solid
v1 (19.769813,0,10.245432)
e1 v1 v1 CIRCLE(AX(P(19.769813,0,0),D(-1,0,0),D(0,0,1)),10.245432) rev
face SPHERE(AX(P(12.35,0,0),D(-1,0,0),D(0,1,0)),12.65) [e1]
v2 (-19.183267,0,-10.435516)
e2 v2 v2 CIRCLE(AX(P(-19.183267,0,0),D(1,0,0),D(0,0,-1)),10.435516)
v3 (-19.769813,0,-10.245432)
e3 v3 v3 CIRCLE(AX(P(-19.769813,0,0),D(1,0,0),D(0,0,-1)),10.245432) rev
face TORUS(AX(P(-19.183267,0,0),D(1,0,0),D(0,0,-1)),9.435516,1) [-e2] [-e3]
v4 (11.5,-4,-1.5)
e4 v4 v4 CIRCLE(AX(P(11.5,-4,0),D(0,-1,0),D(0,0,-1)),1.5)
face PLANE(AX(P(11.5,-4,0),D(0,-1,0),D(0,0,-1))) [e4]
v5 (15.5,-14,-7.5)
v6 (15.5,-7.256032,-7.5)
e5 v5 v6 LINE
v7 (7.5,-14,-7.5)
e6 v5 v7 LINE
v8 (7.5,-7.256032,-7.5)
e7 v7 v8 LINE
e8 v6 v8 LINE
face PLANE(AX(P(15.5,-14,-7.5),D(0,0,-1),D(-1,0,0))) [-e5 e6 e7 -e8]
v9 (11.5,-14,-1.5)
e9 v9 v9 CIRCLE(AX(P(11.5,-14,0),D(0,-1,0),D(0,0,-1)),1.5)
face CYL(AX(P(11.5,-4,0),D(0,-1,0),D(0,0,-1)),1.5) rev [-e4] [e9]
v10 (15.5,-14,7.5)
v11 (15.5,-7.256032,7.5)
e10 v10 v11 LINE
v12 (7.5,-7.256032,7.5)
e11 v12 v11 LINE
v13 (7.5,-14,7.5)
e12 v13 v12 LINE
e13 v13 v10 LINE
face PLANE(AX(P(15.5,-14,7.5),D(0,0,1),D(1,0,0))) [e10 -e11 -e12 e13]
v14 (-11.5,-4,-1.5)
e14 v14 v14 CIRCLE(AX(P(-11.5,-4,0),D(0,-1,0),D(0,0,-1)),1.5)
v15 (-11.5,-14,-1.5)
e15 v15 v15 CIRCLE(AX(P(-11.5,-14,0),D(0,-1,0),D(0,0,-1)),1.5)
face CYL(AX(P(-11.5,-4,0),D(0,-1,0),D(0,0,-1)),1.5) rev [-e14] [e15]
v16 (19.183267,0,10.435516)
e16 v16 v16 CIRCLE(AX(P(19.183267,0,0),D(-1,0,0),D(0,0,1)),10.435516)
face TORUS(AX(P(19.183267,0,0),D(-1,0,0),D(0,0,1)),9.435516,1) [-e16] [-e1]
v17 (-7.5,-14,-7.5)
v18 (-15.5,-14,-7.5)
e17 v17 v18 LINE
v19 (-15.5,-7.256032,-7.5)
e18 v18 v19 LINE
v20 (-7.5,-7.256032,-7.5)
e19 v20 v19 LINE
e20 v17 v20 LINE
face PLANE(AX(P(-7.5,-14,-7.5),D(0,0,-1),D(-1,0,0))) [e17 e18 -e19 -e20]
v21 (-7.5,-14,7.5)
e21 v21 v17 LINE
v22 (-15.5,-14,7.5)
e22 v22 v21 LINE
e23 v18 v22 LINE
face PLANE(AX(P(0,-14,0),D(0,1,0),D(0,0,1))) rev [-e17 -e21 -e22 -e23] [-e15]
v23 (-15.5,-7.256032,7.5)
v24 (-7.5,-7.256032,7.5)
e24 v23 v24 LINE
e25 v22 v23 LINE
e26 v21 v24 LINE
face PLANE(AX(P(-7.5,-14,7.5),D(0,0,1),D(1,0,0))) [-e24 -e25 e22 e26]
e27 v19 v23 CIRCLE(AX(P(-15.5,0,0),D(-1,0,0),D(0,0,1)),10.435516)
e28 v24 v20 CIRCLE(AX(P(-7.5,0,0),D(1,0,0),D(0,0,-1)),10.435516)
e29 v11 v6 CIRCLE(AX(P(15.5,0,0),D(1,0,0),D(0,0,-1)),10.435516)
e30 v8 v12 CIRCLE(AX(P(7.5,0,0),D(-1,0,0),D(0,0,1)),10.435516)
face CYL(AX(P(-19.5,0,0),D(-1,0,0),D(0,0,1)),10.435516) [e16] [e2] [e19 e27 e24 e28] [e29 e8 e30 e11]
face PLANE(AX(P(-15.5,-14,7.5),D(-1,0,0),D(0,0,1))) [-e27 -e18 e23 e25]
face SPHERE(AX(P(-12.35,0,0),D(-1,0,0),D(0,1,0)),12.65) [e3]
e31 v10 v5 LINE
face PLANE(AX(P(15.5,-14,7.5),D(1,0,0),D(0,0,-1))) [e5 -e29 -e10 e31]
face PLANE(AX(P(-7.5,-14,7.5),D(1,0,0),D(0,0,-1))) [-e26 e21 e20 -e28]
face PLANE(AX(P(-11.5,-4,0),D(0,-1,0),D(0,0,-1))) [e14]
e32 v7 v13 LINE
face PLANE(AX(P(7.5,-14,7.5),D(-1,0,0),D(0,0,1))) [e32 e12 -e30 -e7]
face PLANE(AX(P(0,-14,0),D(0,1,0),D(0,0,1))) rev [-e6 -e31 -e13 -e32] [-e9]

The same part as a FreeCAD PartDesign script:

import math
import FreeCAD as App
import Part
import Sketcher
from FreeCAD import Vector
Q = App.Units.Quantity


def edges_at(feature, points):
    """Names of the edges that pass closest to the given points."""
    edges = feature.Shape.Edges
    near = lambda p: min(range(len(edges)), key=lambda i: edges[i].distToShape(Part.Vertex(*p))[0])
    return sorted({f"Edge{near(p) + 1}" for p in points})


def add_polygon(sketch, points):
    """Adds a closed chain of lines whose ends are joined by coincident constraints."""
    first, n = sketch.GeometryCount, len(points)
    for a, b in zip(points, points[1:] + points[:1]):
        sketch.addGeometry(Part.LineSegment(App.Vector(*a, 0), App.Vector(*b, 0)), False)
    for i in range(n):
        sketch.addConstraint(Sketcher.Constraint("Coincident", first + i, 2, first + (i + 1) % n, 1))

doc = App.newDocument("Part")
body = doc.addObject("PartDesign::Body", "Body")

sketch1 = body.newObject("Sketcher::SketchObject", "Sketch")
sketch1.AttachmentSupport = (doc.getObject("XY_Plane"), [""])
sketch1.MapMode = "FlatFace"
sketch1.addGeometry(Part.LineSegment(Vector(20, 10, 0), Vector(-20, 10, 0)), False)
sketch1.addGeometry(Part.ArcOfCircle(Part.Circle(Vector(-12, 0, 0), Vector(0, 0, 1), 13), math.radians(124), math.radians(180)), False)
sketch1.addGeometry(Part.LineSegment(Vector(-25, 0, 0), Vector(25, 0, 0)), False)
sketch1.addGeometry(Part.ArcOfCircle(Part.Circle(Vector(12, 0, 0), Vector(0, 0, 1), 13), math.radians(0), math.radians(56)), False)
sketch1.addConstraint(Sketcher.Constraint("Coincident", 0, 2, 1, 1))
sketch1.addConstraint(Sketcher.Constraint("Coincident", 1, 2, 2, 1))
sketch1.addConstraint(Sketcher.Constraint("Coincident", 2, 2, 3, 1))
sketch1.addConstraint(Sketcher.Constraint("Coincident", 3, 2, 0, 1))
sketch1.addConstraint(Sketcher.Constraint("Horizontal", 0))
sketch1.addConstraint(Sketcher.Constraint("Horizontal", 2))
sketch1.addConstraint(Sketcher.Constraint("Equal", 1, 3))
sketch1.addConstraint(Sketcher.Constraint("Symmetric", 1, 3, 3, 3, -1, 1))
sketch1.addConstraint(Sketcher.Constraint("PointOnObject", 1, 3, -1))
sketch1.addConstraint(Sketcher.Constraint("PointOnObject", 1, 2, -1))
sketch1.addConstraint(Sketcher.Constraint("DistanceX", 0, 2, 0, 1, Q("39 mm")))
sketch1.addConstraint(Sketcher.Constraint("DistanceX", 2, 1, 2, 2, Q("50 mm")))
sketch1.addConstraint(Sketcher.Constraint("Radius", 1, Q("12.65 mm")))
revolution = body.newObject("PartDesign::Revolution", "Revolution")
revolution.Profile = sketch1
revolution.ReferenceAxis = (sketch1, ["H_Axis"])
revolution.Angle = 360

sketch2 = body.newObject("Sketcher::SketchObject", "Sketch001")
sketch2.AttachmentSupport = (doc.getObject("XZ_Plane"), [""])
sketch2.MapMode = "FlatFace"
add_polygon(sketch2, [(-16, -8), (-16, 8), (-8, 8), (-8, -8)])
add_polygon(sketch2, [(8, -8), (8, 8), (16, 8), (16, -8)])
sketch2.addConstraint(Sketcher.Constraint("Vertical", 0))
sketch2.addConstraint(Sketcher.Constraint("Horizontal", 1))
sketch2.addConstraint(Sketcher.Constraint("Vertical", 2))
sketch2.addConstraint(Sketcher.Constraint("Horizontal", 3))
sketch2.addConstraint(Sketcher.Constraint("Vertical", 4))
sketch2.addConstraint(Sketcher.Constraint("Horizontal", 5))
sketch2.addConstraint(Sketcher.Constraint("Vertical", 6))
sketch2.addConstraint(Sketcher.Constraint("Horizontal", 7))
sketch2.addConstraint(Sketcher.Constraint("Symmetric", 2, 2, 4, 2, -1, 1))
sketch2.addConstraint(Sketcher.Constraint("Symmetric", 0, 2, 6, 2, -1, 1))
sketch2.addConstraint(Sketcher.Constraint("Horizontal", 1, 2, 4, 2))
sketch2.addConstraint(Sketcher.Constraint("DistanceX", 1, 1, 1, 2, Q("8 mm")))
sketch2.addConstraint(Sketcher.Constraint("DistanceY", 0, 1, 0, 2, Q("15 mm")))
sketch2.addConstraint(Sketcher.Constraint("DistanceX", 1, 2, 4, 2, Q("15 mm")))
pad1 = body.newObject("PartDesign::Pad", "Pad")
pad1.Profile = sketch2
pad1.Length = 14

sketch3 = body.newObject("Sketcher::SketchObject", "Sketch002")
sketch3.AttachmentSupport = (doc.getObject("XZ_Plane"), [""])
sketch3.MapMode = "FlatFace"
sketch3.AttachmentOffset = App.Placement(Vector(0, 0, 14), App.Rotation())
sketch3.addGeometry(Part.Circle(Vector(11.5, 0, 0), Vector(0, 0, 1), 1.5), False)
sketch3.addGeometry(Part.Circle(Vector(-11.5, 0, 0), Vector(0, 0, 1), 1.5), False)
sketch3.addConstraint(Sketcher.Constraint("Equal", 0, 1))
sketch3.addConstraint(Sketcher.Constraint("Symmetric", 0, 3, 1, 3, -1, 1))
sketch3.addConstraint(Sketcher.Constraint("PointOnObject", 0, 3, -1))
sketch3.addConstraint(Sketcher.Constraint("Diameter", 0, Q("3 mm")))
sketch3.addConstraint(Sketcher.Constraint("DistanceX", 1, 3, 0, 3, Q("23 mm")))
pocket1 = body.newObject("PartDesign::Pocket", "Pocket")
pocket1.Profile = sketch3
pocket1.Length = 10
doc.recompute()

fillet = body.newObject("PartDesign::Fillet", "Fillet")
fillet.Base = (pocket1, edges_at(pocket1, [(-19.5, -10.436, 0), (19.5, -10.436, 0)]))
fillet.Radius = 1

doc.recompute()
